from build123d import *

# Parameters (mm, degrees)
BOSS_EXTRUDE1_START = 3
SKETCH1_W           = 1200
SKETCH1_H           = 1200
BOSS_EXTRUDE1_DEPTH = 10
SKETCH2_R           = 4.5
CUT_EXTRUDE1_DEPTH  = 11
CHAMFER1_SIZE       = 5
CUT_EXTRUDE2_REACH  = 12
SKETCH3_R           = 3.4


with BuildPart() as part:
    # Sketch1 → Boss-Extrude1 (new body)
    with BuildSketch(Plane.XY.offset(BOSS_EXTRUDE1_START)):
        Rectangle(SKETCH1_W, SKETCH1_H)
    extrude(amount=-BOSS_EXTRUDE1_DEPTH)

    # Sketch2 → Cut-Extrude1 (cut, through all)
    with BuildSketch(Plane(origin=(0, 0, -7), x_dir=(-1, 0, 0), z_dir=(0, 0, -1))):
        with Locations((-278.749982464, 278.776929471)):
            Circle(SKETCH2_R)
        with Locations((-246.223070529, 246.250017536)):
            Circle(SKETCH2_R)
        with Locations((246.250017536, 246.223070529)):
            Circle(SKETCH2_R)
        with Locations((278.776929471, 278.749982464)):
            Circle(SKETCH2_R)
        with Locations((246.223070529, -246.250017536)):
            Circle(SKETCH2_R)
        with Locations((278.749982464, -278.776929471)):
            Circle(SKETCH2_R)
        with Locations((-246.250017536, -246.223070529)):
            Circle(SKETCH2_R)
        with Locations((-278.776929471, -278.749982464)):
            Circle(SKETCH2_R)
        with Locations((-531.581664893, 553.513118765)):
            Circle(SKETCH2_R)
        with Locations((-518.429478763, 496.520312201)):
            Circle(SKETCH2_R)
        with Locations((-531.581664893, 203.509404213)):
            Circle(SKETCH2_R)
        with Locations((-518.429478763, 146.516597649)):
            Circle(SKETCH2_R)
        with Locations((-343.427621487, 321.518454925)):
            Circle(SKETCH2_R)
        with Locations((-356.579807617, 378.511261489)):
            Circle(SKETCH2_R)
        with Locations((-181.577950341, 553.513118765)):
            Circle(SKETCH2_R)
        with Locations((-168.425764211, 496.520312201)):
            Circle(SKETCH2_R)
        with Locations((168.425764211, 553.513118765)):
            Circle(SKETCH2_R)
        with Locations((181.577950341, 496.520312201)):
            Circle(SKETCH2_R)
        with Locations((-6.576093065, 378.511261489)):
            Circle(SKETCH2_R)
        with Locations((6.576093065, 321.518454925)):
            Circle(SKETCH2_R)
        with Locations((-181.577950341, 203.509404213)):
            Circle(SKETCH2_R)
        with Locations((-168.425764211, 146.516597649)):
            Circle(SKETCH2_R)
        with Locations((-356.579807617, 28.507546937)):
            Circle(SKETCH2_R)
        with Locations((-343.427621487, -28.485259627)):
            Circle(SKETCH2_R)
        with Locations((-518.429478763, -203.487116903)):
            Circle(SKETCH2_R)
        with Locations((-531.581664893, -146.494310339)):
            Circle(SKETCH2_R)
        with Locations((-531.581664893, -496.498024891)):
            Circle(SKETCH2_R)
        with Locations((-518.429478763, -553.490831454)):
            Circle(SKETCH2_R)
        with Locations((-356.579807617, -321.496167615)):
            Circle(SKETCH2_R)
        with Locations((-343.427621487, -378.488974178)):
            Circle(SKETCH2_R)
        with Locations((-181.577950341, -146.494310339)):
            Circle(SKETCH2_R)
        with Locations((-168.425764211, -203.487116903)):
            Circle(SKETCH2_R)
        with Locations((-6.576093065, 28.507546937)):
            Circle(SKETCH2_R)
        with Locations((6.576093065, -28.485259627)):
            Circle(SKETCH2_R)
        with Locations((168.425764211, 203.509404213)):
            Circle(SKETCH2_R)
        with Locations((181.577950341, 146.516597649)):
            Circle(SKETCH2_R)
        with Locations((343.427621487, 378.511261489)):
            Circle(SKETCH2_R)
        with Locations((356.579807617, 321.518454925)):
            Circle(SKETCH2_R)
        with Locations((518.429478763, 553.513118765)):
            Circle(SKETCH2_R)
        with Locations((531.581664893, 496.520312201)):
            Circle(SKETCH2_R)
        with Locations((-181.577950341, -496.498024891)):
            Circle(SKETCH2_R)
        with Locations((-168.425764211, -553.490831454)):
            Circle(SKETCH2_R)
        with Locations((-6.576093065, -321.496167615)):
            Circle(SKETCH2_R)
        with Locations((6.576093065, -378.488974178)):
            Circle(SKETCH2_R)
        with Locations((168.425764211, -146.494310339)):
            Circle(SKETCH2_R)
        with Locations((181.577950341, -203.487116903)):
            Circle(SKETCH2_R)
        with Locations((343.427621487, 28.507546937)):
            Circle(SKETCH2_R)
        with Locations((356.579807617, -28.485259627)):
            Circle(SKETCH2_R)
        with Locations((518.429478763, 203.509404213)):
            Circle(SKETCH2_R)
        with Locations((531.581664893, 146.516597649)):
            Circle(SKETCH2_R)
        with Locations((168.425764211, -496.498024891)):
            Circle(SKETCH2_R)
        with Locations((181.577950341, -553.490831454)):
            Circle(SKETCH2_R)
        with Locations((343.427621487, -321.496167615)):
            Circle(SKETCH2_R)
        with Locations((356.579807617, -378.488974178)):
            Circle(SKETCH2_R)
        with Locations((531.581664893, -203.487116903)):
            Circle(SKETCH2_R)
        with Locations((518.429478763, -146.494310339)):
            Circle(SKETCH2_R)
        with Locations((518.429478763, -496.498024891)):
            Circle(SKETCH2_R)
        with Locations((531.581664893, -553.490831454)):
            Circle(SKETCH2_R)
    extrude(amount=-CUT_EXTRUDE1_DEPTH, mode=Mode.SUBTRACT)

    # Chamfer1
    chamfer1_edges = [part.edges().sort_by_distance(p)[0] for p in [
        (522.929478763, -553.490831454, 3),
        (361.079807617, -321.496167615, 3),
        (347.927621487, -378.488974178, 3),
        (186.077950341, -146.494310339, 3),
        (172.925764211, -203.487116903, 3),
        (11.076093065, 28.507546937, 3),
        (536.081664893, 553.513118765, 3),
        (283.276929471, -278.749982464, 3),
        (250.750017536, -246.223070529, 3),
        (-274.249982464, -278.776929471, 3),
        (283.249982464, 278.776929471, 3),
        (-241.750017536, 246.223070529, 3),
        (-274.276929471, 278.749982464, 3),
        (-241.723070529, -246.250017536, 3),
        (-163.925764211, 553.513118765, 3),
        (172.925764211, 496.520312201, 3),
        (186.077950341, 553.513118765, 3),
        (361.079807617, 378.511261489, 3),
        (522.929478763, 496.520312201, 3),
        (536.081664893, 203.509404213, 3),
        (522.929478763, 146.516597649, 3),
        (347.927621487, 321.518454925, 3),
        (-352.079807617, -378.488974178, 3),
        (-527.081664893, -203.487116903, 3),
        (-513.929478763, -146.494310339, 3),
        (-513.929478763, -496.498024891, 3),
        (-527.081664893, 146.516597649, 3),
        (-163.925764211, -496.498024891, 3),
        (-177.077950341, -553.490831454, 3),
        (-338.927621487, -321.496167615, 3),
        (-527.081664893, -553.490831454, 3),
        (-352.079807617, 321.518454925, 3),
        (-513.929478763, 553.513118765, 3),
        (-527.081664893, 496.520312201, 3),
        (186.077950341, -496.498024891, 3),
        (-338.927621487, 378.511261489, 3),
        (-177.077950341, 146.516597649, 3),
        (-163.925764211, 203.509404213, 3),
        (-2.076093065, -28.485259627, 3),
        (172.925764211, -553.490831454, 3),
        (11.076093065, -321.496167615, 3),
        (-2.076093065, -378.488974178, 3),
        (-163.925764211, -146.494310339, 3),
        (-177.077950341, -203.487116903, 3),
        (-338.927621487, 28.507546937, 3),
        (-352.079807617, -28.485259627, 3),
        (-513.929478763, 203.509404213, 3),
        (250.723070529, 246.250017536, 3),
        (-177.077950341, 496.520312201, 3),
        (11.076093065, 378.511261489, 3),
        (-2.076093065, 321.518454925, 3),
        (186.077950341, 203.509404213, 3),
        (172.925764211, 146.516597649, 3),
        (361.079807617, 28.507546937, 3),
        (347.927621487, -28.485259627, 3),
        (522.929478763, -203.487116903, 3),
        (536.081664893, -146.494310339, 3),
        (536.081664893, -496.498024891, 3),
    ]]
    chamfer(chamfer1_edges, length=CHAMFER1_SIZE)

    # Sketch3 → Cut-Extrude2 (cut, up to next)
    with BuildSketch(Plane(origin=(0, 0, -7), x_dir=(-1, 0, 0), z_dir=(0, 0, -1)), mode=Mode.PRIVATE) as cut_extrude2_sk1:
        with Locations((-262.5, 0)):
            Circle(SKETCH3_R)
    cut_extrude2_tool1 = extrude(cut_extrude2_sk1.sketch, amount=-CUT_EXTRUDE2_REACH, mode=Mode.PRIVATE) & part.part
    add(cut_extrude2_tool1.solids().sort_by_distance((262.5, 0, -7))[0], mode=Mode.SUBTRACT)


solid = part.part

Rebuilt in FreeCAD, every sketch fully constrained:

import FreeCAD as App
import Part
import Sketcher

V = App.Vector


def edges_at(feature, points):
    """Names of the edges that pass closest to the given points."""
    edges = feature.Shape.Edges
    near = lambda p: min(range(len(edges)), key=lambda i: edges[i].distToShape(Part.Vertex(*p))[0])
    return sorted({f"Edge{near(p) + 1}" for p in points})

doc = App.newDocument("Part")
body = doc.addObject("PartDesign::Body", "Body")

# Sketch on XY plane
sketch1 = body.newObject("Sketcher::SketchObject", "Sketch")
sketch1.AttachmentSupport = (doc.getObject("XY_Plane"), [""])
sketch1.MapMode = "FlatFace"
sketch1.AttachmentOffset = App.Placement(V(0, 0, 3), App.Rotation())
sketch1.addGeometry([
    Part.LineSegment(V(-600, 600, 0), V(-600, -600, 0)),
    Part.LineSegment(V(-600, -600, 0), V(600, -600, 0)),
    Part.LineSegment(V(600, -600, 0), V(600, 600, 0)),
    Part.LineSegment(V(600, 600, 0), V(-600, 600, 0)),
], False)
sketch1.addConstraint([
    Sketcher.Constraint("Coincident", 0, 2, 1, 1),
    Sketcher.Constraint("Coincident", 1, 2, 2, 1),
    Sketcher.Constraint("Coincident", 2, 2, 3, 1),
    Sketcher.Constraint("Coincident", 3, 2, 0, 1),
    Sketcher.Constraint("Vertical", 0),
    Sketcher.Constraint("Horizontal", 1),
    Sketcher.Constraint("Vertical", 2),
    Sketcher.Constraint("Horizontal", 3),
    Sketcher.Constraint("Symmetric", 0, 2, 2, 2, -1, 1),
    Sketcher.Constraint("Equal", 3, 0),
    Sketcher.Constraint("DistanceX", 1, 1, 1, 2, 1200.0),
])
pad1 = body.newObject("PartDesign::Pad", "Pad")
pad1.Profile = sketch1
pad1.Length = 10
pad1.Reversed = True

# Sketch on XY plane
sketch2 = body.newObject("Sketcher::SketchObject", "Sketch001")
sketch2.AttachmentSupport = (doc.getObject("XY_Plane"), [""])
sketch2.MapMode = "FlatFace"
sketch2.AttachmentOffset = App.Placement(V(0, 0, -7), App.Rotation())
sketch2.addGeometry([
    Part.Circle(V(278.7, 278.8, 0), V(0, 0, 1), 4.5),  # 0
    Part.Circle(V(246.2, 246.3, 0), V(0, 0, 1), 4.5),  # 1
    Part.Circle(V(-246.3, 246.2, 0), V(0, 0, 1), 4.5),  # 2
    Part.Circle(V(-278.8, 278.7, 0), V(0, 0, 1), 4.5),  # 3
    Part.Circle(V(-246.2, -246.3, 0), V(0, 0, 1), 4.5),  # 4
    Part.Circle(V(-278.7, -278.8, 0), V(0, 0, 1), 4.5),  # 5
    Part.Circle(V(246.3, -246.2, 0), V(0, 0, 1), 4.5),  # 6
    Part.Circle(V(278.8, -278.7, 0), V(0, 0, 1), 4.5),  # 7
    Part.Circle(V(531.6, 553.5, 0), V(0, 0, 1), 4.5),  # 8
    Part.Circle(V(518.4, 496.5, 0), V(0, 0, 1), 4.5),  # 9
    Part.Circle(V(531.6, 203.5, 0), V(0, 0, 1), 4.5),  # 10
    Part.Circle(V(518.4, 146.5, 0), V(0, 0, 1), 4.5),  # 11
    Part.Circle(V(343.4, 321.5, 0), V(0, 0, 1), 4.5),  # 12
    Part.Circle(V(356.6, 378.5, 0), V(0, 0, 1), 4.5),  # 13
    Part.Circle(V(181.6, 553.5, 0), V(0, 0, 1), 4.5),  # 14
    Part.Circle(V(168.4, 496.5, 0), V(0, 0, 1), 4.5),  # 15
    Part.Circle(V(-168.4, 553.5, 0), V(0, 0, 1), 4.5),  # 16
    Part.Circle(V(-181.6, 496.5, 0), V(0, 0, 1), 4.5),  # 17
    Part.Circle(V(6.6, 378.5, 0), V(0, 0, 1), 4.5),  # 18
    Part.Circle(V(-6.6, 321.5, 0), V(0, 0, 1), 4.5),  # 19
    Part.Circle(V(181.6, 203.5, 0), V(0, 0, 1), 4.5),  # 20
    Part.Circle(V(168.4, 146.5, 0), V(0, 0, 1), 4.5),  # 21
    Part.Circle(V(356.6, 28.5, 0), V(0, 0, 1), 4.5),  # 22
    Part.Circle(V(343.4, -28.5, 0), V(0, 0, 1), 4.5),  # 23
    Part.Circle(V(518.4, -203.5, 0), V(0, 0, 1), 4.5),  # 24
    Part.Circle(V(531.6, -146.5, 0), V(0, 0, 1), 4.5),  # 25
    Part.Circle(V(531.6, -496.5, 0), V(0, 0, 1), 4.5),  # 26
    Part.Circle(V(518.4, -553.5, 0), V(0, 0, 1), 4.5),  # 27
    Part.Circle(V(356.6, -321.5, 0), V(0, 0, 1), 4.5),  # 28
    Part.Circle(V(343.4, -378.5, 0), V(0, 0, 1), 4.5),  # 29
    Part.Circle(V(181.6, -146.5, 0), V(0, 0, 1), 4.5),  # 30
    Part.Circle(V(168.4, -203.5, 0), V(0, 0, 1), 4.5),  # 31
    Part.Circle(V(6.6, 28.5, 0), V(0, 0, 1), 4.5),  # 32
    Part.Circle(V(-6.6, -28.5, 0), V(0, 0, 1), 4.5),  # 33
    Part.Circle(V(-168.4, 203.5, 0), V(0, 0, 1), 4.5),  # 34
    Part.Circle(V(-181.6, 146.5, 0), V(0, 0, 1), 4.5),  # 35
    Part.Circle(V(-343.4, 378.5, 0), V(0, 0, 1), 4.5),  # 36
    Part.Circle(V(-356.6, 321.5, 0), V(0, 0, 1), 4.5),  # 37
    Part.Circle(V(-518.4, 553.5, 0), V(0, 0, 1), 4.5),  # 38
    Part.Circle(V(-531.6, 496.5, 0), V(0, 0, 1), 4.5),  # 39
    Part.Circle(V(181.6, -496.5, 0), V(0, 0, 1), 4.5),  # 40
    Part.Circle(V(168.4, -553.5, 0), V(0, 0, 1), 4.5),  # 41
    Part.Circle(V(6.6, -321.5, 0), V(0, 0, 1), 4.5),  # 42
    Part.Circle(V(-6.6, -378.5, 0), V(0, 0, 1), 4.5),  # 43
    Part.Circle(V(-168.4, -146.5, 0), V(0, 0, 1), 4.5),  # 44
    Part.Circle(V(-181.6, -203.5, 0), V(0, 0, 1), 4.5),  # 45
    Part.Circle(V(-343.4, 28.5, 0), V(0, 0, 1), 4.5),  # 46
    Part.Circle(V(-356.6, -28.5, 0), V(0, 0, 1), 4.5),  # 47
    Part.Circle(V(-518.4, 203.5, 0), V(0, 0, 1), 4.5),  # 48
    Part.Circle(V(-531.6, 146.5, 0), V(0, 0, 1), 4.5),  # 49
    Part.Circle(V(-168.4, -496.5, 0), V(0, 0, 1), 4.5),  # 50
    Part.Circle(V(-181.6, -553.5, 0), V(0, 0, 1), 4.5),  # 51
    Part.Circle(V(-343.4, -321.5, 0), V(0, 0, 1), 4.5),  # 52
    Part.Circle(V(-356.6, -378.5, 0), V(0, 0, 1), 4.5),  # 53
    Part.Circle(V(-531.6, -203.5, 0), V(0, 0, 1), 4.5),  # 54
    Part.Circle(V(-518.4, -146.5, 0), V(0, 0, 1), 4.5),  # 55
    Part.Circle(V(-518.4, -496.5, 0), V(0, 0, 1), 4.5),  # 56
    Part.Circle(V(-531.6, -553.5, 0), V(0, 0, 1), 4.5),  # 57
], False)
sketch2.addConstraint([
    Sketcher.Constraint("Equal", 0, 1),
    Sketcher.Constraint("Equal", 1, 2),
    Sketcher.Constraint("Equal", 2, 3),
    Sketcher.Constraint("Equal", 3, 4),
    Sketcher.Constraint("Equal", 4, 5),
    Sketcher.Constraint("Equal", 5, 6),
    Sketcher.Constraint("Equal", 6, 7),
    Sketcher.Constraint("Equal", 7, 8),
    Sketcher.Constraint("Equal", 8, 9),
    Sketcher.Constraint("Equal", 9, 10),
    Sketcher.Constraint("Equal", 10, 11),
    Sketcher.Constraint("Equal", 11, 12),
    Sketcher.Constraint("Equal", 12, 13),
    Sketcher.Constraint("Equal", 13, 14),
    Sketcher.Constraint("Equal", 14, 15),
    Sketcher.Constraint("Equal", 15, 16),
    Sketcher.Constraint("Equal", 16, 17),
    Sketcher.Constraint("Equal", 17, 18),
    Sketcher.Constraint("Equal", 18, 19),
    Sketcher.Constraint("Equal", 19, 20),
    Sketcher.Constraint("Equal", 20, 21),
    Sketcher.Constraint("Equal", 21, 22),
    Sketcher.Constraint("Equal", 22, 23),
    Sketcher.Constraint("Equal", 23, 24),
    Sketcher.Constraint("Equal", 24, 25),
    Sketcher.Constraint("Equal", 25, 26),
    Sketcher.Constraint("Equal", 26, 27),
    Sketcher.Constraint("Equal", 27, 28),
    Sketcher.Constraint("Equal", 28, 29),
    Sketcher.Constraint("Equal", 29, 30),
    Sketcher.Constraint("Equal", 30, 31),
    Sketcher.Constraint("Equal", 31, 32),
    Sketcher.Constraint("Equal", 32, 33),
    Sketcher.Constraint("Equal", 33, 34),
    Sketcher.Constraint("Equal", 34, 35),
    Sketcher.Constraint("Equal", 35, 36),
    Sketcher.Constraint("Equal", 36, 37),
    Sketcher.Constraint("Equal", 37, 38),
    Sketcher.Constraint("Equal", 38, 39),
    Sketcher.Constraint("Equal", 39, 40),
    Sketcher.Constraint("Equal", 40, 41),
    Sketcher.Constraint("Equal", 41, 42),
    Sketcher.Constraint("Equal", 42, 43),
    Sketcher.Constraint("Equal", 43, 44),
    Sketcher.Constraint("Equal", 44, 45),
    Sketcher.Constraint("Equal", 45, 46),
    Sketcher.Constraint("Equal", 46, 47),
    Sketcher.Constraint("Equal", 47, 48),
    Sketcher.Constraint("Equal", 48, 49),
    Sketcher.Constraint("Equal", 49, 50),
    Sketcher.Constraint("Equal", 50, 51),
    Sketcher.Constraint("Equal", 51, 52),
    Sketcher.Constraint("Equal", 52, 53),
    Sketcher.Constraint("Equal", 53, 54),
    Sketcher.Constraint("Equal", 54, 55),
    Sketcher.Constraint("Equal", 55, 56),
    Sketcher.Constraint("Equal", 56, 57),
    Sketcher.Constraint("Symmetric", 1, 3, 4, 3, -1, 1),
    Sketcher.Constraint("Symmetric", 0, 3, 5, 3, -1, 1),
    Sketcher.Constraint("Symmetric", 2, 3, 6, 3, -1, 1),
    Sketcher.Constraint("Symmetric", 3, 3, 7, 3, -1, 1),
    Sketcher.Constraint("Horizontal", 8, 3, 14, 3),
    Sketcher.Constraint("Horizontal", 9, 3, 15, 3),
    Sketcher.Constraint("Horizontal", 14, 3, 16, 3),
    Sketcher.Constraint("Horizontal", 15, 3, 17, 3),
    Sketcher.Constraint("Horizontal", 13, 3, 18, 3),
    Sketcher.Constraint("Horizontal", 12, 3, 19, 3),
    Sketcher.Constraint("Horizontal", 10, 3, 20, 3),
    Sketcher.Constraint("Horizontal", 11, 3, 21, 3),
    Sketcher.Constraint("Horizontal", 25, 3, 30, 3),
    Sketcher.Constraint("Horizontal", 24, 3, 31, 3),
    Sketcher.Constraint("Horizontal", 22, 3, 32, 3),
    Sketcher.Constraint("Horizontal", 23, 3, 33, 3),
    Sketcher.Constraint("Horizontal", 20, 3, 34, 3),
    Sketcher.Constraint("Horizontal", 21, 3, 35, 3),
    Sketcher.Constraint("Horizontal", 18, 3, 36, 3),
    Sketcher.Constraint("Horizontal", 19, 3, 37, 3),
    Sketcher.Constraint("Horizontal", 16, 3, 38, 3),
    Sketcher.Constraint("Horizontal", 17, 3, 39, 3),
    Sketcher.Constraint("Horizontal", 26, 3, 40, 3),
    Sketcher.Constraint("Horizontal", 27, 3, 41, 3),
    Sketcher.Constraint("Horizontal", 28, 3, 42, 3),
    Sketcher.Constraint("Horizontal", 29, 3, 43, 3),
    Sketcher.Constraint("Horizontal", 30, 3, 44, 3),
    Sketcher.Constraint("Horizontal", 31, 3, 45, 3),
    Sketcher.Constraint("Horizontal", 32, 3, 46, 3),
    Sketcher.Constraint("Horizontal", 33, 3, 47, 3),
    Sketcher.Constraint("Horizontal", 34, 3, 48, 3),
    Sketcher.Constraint("Horizontal", 35, 3, 49, 3),
    Sketcher.Constraint("Horizontal", 40, 3, 50, 3),
    Sketcher.Constraint("Horizontal", 41, 3, 51, 3),
    Sketcher.Constraint("Horizontal", 42, 3, 52, 3),
    Sketcher.Constraint("Horizontal", 43, 3, 53, 3),
    Sketcher.Constraint("Horizontal", 45, 3, 54, 3),
    Sketcher.Constraint("Horizontal", 44, 3, 55, 3),
    Sketcher.Constraint("Horizontal", 50, 3, 56, 3),
    Sketcher.Constraint("Horizontal", 51, 3, 57, 3),
    Sketcher.Constraint("Vertical", 8, 3, 10, 3),
    Sketcher.Constraint("Vertical", 9, 3, 11, 3),
    Sketcher.Constraint("Vertical", 14, 3, 20, 3),
    Sketcher.Constraint("Vertical", 15, 3, 21, 3),
    Sketcher.Constraint("Vertical", 13, 3, 22, 3),
    Sketcher.Constraint("Vertical", 12, 3, 23, 3),
    Sketcher.Constraint("Vertical", 11, 3, 24, 3),
    Sketcher.Constraint("Vertical", 10, 3, 25, 3),
    Sketcher.Constraint("Vertical", 25, 3, 26, 3),
    Sketcher.Constraint("Vertical", 24, 3, 27, 3),
    Sketcher.Constraint("Vertical", 22, 3, 28, 3),
    Sketcher.Constraint("Vertical", 23, 3, 29, 3),
    Sketcher.Constraint("Vertical", 20, 3, 30, 3),
    Sketcher.Constraint("Vertical", 21, 3, 31, 3),
    Sketcher.Constraint("Vertical", 18, 3, 32, 3),
    Sketcher.Constraint("Vertical", 19, 3, 33, 3),
    Sketcher.Constraint("Vertical", 16, 3, 34, 3),
    Sketcher.Constraint("Vertical", 17, 3, 35, 3),
    Sketcher.Constraint("Vertical", 30, 3, 40, 3),
    Sketcher.Constraint("Vertical", 31, 3, 41, 3),
    Sketcher.Constraint("Vertical", 32, 3, 42, 3),
    Sketcher.Constraint("Vertical", 33, 3, 43, 3),
    Sketcher.Constraint("Vertical", 34, 3, 44, 3),
    Sketcher.Constraint("Vertical", 35, 3, 45, 3),
    Sketcher.Constraint("Vertical", 36, 3, 46, 3),
    Sketcher.Constraint("Vertical", 37, 3, 47, 3),
    Sketcher.Constraint("Vertical", 38, 3, 48, 3),
    Sketcher.Constraint("Vertical", 39, 3, 49, 3),
    Sketcher.Constraint("Vertical", 44, 3, 50, 3),
    Sketcher.Constraint("Vertical", 45, 3, 51, 3),
    Sketcher.Constraint("Vertical", 46, 3, 52, 3),
    Sketcher.Constraint("Vertical", 47, 3, 53, 3),
    Sketcher.Constraint("Vertical", 49, 3, 54, 3),
    Sketcher.Constraint("Vertical", 48, 3, 55, 3),
    Sketcher.Constraint("Vertical", 55, 3, 56, 3),
    Sketcher.Constraint("Vertical", 54, 3, 57, 3),
    Sketcher.Constraint("Diameter", 0, 9.0),
    Sketcher.Constraint("DistanceX", 2, 3, 0, 3, 525.0),
    Sketcher.Constraint("DistanceX", 3, 3, 1, 3, 525.0),
    Sketcher.Constraint("DistanceY", 4, 3, 3, 3, 525.0),
    Sketcher.Constraint("DistanceY", 5, 3, 2, 3, 525.0),
    Sketcher.Constraint("DistanceY", 1, 3, 8, 3, 307.263101),
    Sketcher.Constraint("DistanceX", 17, 3, 14, 3, 363.155901),
    Sketcher.Constraint("DistanceY", 4, 3, 45, 3, 42.762901),
    Sketcher.Constraint("DistanceY", 51, 3, 5, 3, 274.713902),
    Sketcher.Constraint("DistanceY", -1, 1, 0, 3, 278.776929),
    Sketcher.Constraint("DistanceX", -1, 1, 1, 3, 246.223071),
    Sketcher.Constraint("DistanceY", -1, 1, 8, 3, 553.513119),
    Sketcher.Constraint("DistanceX", -1, 1, 9, 3, 518.429479),
    Sketcher.Constraint("DistanceX", -1, 1, 12, 3, 343.427621),
    Sketcher.Constraint("DistanceY", -1, 1, 13, 3, 378.511261),
    Sketcher.Constraint("DistanceX", -1, 1, 14, 3, 181.57795),
    Sketcher.Constraint("DistanceY", 23, 3, -1, 1, 28.48526),
    Sketcher.Constraint("DistanceY", 25, 3, -1, 1, 146.49431),
    Sketcher.Constraint("DistanceX", 36, 3, -1, 1, 343.427621),
    Sketcher.Constraint("DistanceX", 38, 3, -1, 1, 518.429479),
    Sketcher.Constraint("DistanceX", 1, 3, 0, 3, 32.526912),
    Sketcher.Constraint("DistanceY", 2, 3, 9, 3, 250.297242),
    Sketcher.Constraint("DistanceY", 11, 3, 0, 3, 132.260332),
    Sketcher.Constraint("DistanceY", 10, 3, 12, 3, 118.009051),
    Sketcher.Constraint("DistanceX", 13, 3, 9, 3, 161.849671),
    Sketcher.Constraint("DistanceX", 15, 3, 0, 3, 110.324218),
    Sketcher.Constraint("DistanceX", 16, 3, 15, 3, 336.851528),
    Sketcher.Constraint("DistanceX", 18, 3, 15, 3, 161.849671),
    Sketcher.Constraint("DistanceY", 22, 3, 11, 3, 118.009051),
    Sketcher.Constraint("DistanceY", 28, 3, 24, 3, 118.009051),
    Sketcher.Constraint("DistanceY", 29, 3, 7, 3, 99.738992),
    Sketcher.Constraint("DistanceY", 26, 3, 29, 3, 118.009051),
    Sketcher.Constraint("DistanceY", 34, 3, 3, 3, 75.240578),
    Sketcher.Constraint("DistanceX", 34, 3, 19, 3, 161.849671),
    Sketcher.Constraint("DistanceX", 37, 3, 3, 3, 77.802878),
    Sketcher.Constraint("DistanceX", -1, 1, 8, 3, 531.581665),
    Sketcher.Constraint("DistanceX", 39, 3, -1, 1, 531.581665),
])
pocket1 = body.newObject("PartDesign::Pocket", "Pocket")
pocket1.Profile = sketch2
pocket1.Type = "ThroughAll"
pocket1.Reversed = True
doc.recompute()

chamfer = body.newObject("PartDesign::Chamfer", "Chamfer")
chamfer.Base = (pocket1, edges_at(pocket1, [
    (522.929, -553.491, 3),
    (361.08, -321.496, 3),
    (347.928, -378.489, 3),
    (186.078, -146.494, 3),
    (172.926, -203.487, 3),
    (11.076, 28.508, 3),
    (536.082, 553.513, 3),
    (283.277, -278.75, 3),
    (250.75, -246.223, 3),
    (-274.25, -278.777, 3),
    (283.25, 278.777, 3),
    (-241.75, 246.223, 3),
    (-274.277, 278.75, 3),
    (-241.723, -246.25, 3),
    (-163.926, 553.513, 3),
    (172.926, 496.52, 3),
    (186.078, 553.513, 3),
    (361.08, 378.511, 3),
    (522.929, 496.52, 3),
    (536.082, 203.509, 3),
    (522.929, 146.517, 3),
    (347.928, 321.518, 3),
    (-352.08, -378.489, 3),
    (-527.082, -203.487, 3),
    (-513.929, -146.494, 3),
    (-513.929, -496.498, 3),
    (-527.082, 146.517, 3),
    (-163.926, -496.498, 3),
    (-177.078, -553.491, 3),
    (-338.928, -321.496, 3),
    (-527.082, -553.491, 3),
    (-352.08, 321.518, 3),
    (-513.929, 553.513, 3),
    (-527.082, 496.52, 3),
    (186.078, -496.498, 3),
    (-338.928, 378.511, 3),
    (-177.078, 146.517, 3),
    (-163.926, 203.509, 3),
    (-2.076, -28.485, 3),
    (172.926, -553.491, 3),
    (11.076, -321.496, 3),
    (-2.076, -378.489, 3),
    (-163.926, -146.494, 3),
    (-177.078, -203.487, 3),
    (-338.928, 28.508, 3),
    (-352.08, -28.485, 3),
    (-513.929, 203.509, 3),
    (250.723, 246.25, 3),
    (-177.078, 496.52, 3),
    (11.076, 378.511, 3),
    (-2.076, 321.518, 3),
    (186.078, 203.509, 3),
    (172.926, 146.517, 3),
    (361.08, 28.508, 3),
    (347.928, -28.485, 3),
    (522.929, -203.487, 3),
    (536.082, -146.494, 3),
    (536.082, -496.498, 3),
]))
chamfer.Size = 5

# Sketch on XY plane
sketch3 = body.newObject("Sketcher::SketchObject", "Sketch002")
sketch3.AttachmentSupport = (doc.getObject("XY_Plane"), [""])
sketch3.MapMode = "FlatFace"
sketch3.AttachmentOffset = App.Placement(V(0, 0, -7), App.Rotation())
sketch3.addGeometry(Part.Circle(V(262.5, 0, 0), V(0, 0, 1), 3.4), False)
sketch3.addConstraint([
    Sketcher.Constraint("PointOnObject", 0, 3, -1),
    Sketcher.Constraint("Diameter", 0, 6.8),
    Sketcher.Constraint("DistanceX", -1, 1, 0, 3, 262.5),
])
pocket2 = body.newObject("PartDesign::Pocket", "Pocket001")
pocket2.Profile = sketch3
pocket2.Type = "UpToFirst"
pocket2.Reversed = True

doc.recompute()
